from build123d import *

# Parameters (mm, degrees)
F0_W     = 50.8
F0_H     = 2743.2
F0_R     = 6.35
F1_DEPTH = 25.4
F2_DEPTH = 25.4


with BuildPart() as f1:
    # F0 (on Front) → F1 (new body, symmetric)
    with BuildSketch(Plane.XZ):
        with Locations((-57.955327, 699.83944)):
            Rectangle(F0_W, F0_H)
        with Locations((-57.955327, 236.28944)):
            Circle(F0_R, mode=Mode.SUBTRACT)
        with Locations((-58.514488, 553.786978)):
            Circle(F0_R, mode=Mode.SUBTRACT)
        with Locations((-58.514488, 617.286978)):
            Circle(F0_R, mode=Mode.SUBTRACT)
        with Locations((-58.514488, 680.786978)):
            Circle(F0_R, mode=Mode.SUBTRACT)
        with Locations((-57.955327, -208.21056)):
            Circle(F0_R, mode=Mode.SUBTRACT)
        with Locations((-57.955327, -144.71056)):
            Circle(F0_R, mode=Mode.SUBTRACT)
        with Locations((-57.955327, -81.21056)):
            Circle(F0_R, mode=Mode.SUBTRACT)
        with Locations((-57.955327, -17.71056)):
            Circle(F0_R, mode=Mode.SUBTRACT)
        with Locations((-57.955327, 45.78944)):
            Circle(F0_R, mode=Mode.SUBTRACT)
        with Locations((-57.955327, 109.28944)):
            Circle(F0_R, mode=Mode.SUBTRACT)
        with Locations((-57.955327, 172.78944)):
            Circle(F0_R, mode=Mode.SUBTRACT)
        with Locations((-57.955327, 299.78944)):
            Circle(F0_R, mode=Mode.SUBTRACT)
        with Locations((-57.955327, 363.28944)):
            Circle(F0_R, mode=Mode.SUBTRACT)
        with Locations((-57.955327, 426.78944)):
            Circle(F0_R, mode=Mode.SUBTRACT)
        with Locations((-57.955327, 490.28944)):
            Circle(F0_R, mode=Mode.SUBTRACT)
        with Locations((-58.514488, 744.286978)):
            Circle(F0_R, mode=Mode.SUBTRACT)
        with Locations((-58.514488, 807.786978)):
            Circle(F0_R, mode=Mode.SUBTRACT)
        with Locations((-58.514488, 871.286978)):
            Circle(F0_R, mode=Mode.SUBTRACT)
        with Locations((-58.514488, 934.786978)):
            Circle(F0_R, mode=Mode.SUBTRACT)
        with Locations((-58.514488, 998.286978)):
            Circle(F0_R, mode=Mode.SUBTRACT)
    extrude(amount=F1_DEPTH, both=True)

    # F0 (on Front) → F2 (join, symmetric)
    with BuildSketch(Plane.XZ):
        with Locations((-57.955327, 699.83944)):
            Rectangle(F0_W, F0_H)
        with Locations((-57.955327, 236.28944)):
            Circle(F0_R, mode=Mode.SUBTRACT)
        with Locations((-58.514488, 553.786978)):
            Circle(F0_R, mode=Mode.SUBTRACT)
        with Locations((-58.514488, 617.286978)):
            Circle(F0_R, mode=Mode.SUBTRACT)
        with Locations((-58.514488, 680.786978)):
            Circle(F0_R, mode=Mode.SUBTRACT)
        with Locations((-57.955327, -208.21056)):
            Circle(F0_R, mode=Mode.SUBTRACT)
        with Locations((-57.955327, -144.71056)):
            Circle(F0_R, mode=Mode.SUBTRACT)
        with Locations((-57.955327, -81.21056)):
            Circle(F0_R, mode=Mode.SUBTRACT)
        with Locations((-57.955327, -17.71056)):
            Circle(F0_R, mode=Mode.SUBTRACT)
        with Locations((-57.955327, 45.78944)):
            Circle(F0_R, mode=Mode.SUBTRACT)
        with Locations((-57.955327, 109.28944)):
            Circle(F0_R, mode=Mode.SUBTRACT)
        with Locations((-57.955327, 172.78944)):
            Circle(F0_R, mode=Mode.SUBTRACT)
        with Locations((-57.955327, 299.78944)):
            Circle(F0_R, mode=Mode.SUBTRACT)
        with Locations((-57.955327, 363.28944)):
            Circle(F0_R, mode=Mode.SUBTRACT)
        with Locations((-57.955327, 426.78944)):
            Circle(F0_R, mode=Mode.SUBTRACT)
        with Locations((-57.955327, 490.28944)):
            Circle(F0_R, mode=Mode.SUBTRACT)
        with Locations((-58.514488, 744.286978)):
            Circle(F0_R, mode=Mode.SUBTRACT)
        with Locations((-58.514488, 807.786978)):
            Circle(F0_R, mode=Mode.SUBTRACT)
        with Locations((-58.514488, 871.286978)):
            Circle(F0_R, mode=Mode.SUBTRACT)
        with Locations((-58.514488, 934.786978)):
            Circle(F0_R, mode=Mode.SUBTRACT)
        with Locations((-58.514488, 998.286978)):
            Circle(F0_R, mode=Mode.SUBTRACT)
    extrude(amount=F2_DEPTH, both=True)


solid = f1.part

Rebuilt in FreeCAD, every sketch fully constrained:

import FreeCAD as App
import Part
import Sketcher
Q = App.Units.Quantity

doc = App.newDocument("Part")
params = doc.addObject("Spreadsheet::Sheet", "Params")
for row, (alias, value) in enumerate([
    ("sketch1_diameter", "0.5 in"),
    ("sketch1_width", "2 in"),
    ("sketch1_height", "108 in"),
    ("pad1_length", "2 in"),
    ("sketch2_diameter", "0.5 in"),
    ("sketch2_width", "2 in"),
    ("sketch2_height", "108 in"),
    ("pad2_length", "2 in"),
], start=1):
    params.set(f"A{row}", alias)
    params.set(f"B{row}", "=" + value)
    params.setAlias(f"B{row}", alias)

body = doc.addObject("PartDesign::Body", "Body")

# Sketch on XZ plane
sketch1 = doc.addObject("Sketcher::SketchObject", "Sketch")
body.addObject(sketch1)
sketch1.AttachmentSupport = (doc.XZ_Plane, [""])
sketch1.MapMode = "FlatFace"
sketch1.addGeometry([
    Part.LineSegment(App.Vector(-83.355327, 2071.43944, 0), App.Vector(-83.355327, -671.76056, 0)),  # 0
    Part.LineSegment(App.Vector(-83.355327, -671.76056, 0), App.Vector(-32.555327, -671.76056, 0)),  # 1
    Part.LineSegment(App.Vector(-32.555327, -671.76056, 0), App.Vector(-32.555327, 2071.43944, 0)),  # 2
    Part.LineSegment(App.Vector(-32.555327, 2071.43944, 0), App.Vector(-83.355327, 2071.43944, 0)),  # 3
    Part.Circle(App.Vector(-57.955327, -208.21056, 0), App.Vector(0, 0, 1), 6.35),  # 4
    Part.Circle(App.Vector(-57.955327, -144.71056, 0), App.Vector(0, 0, 1), 6.35),  # 5
    Part.Circle(App.Vector(-57.955327, -81.21056, 0), App.Vector(0, 0, 1), 6.35),  # 6
    Part.Circle(App.Vector(-57.955327, -17.71056, 0), App.Vector(0, 0, 1), 6.35),  # 7
    Part.Circle(App.Vector(-57.955327, 45.78944, 0), App.Vector(0, 0, 1), 6.35),  # 8
    Part.Circle(App.Vector(-57.955327, 109.28944, 0), App.Vector(0, 0, 1), 6.35),  # 9
    Part.Circle(App.Vector(-57.955327, 172.78944, 0), App.Vector(0, 0, 1), 6.35),  # 10
    Part.Circle(App.Vector(-57.955327, 236.28944, 0), App.Vector(0, 0, 1), 6.35),  # 11
    Part.Circle(App.Vector(-57.955327, 299.78944, 0), App.Vector(0, 0, 1), 6.35),  # 12
    Part.Circle(App.Vector(-57.955327, 363.28944, 0), App.Vector(0, 0, 1), 6.35),  # 13
    Part.Circle(App.Vector(-58.514488, 553.786978, 0), App.Vector(0, 0, 1), 6.35),  # 14
    Part.Circle(App.Vector(-58.514488, 617.286978, 0), App.Vector(0, 0, 1), 6.35),  # 15
    Part.Circle(App.Vector(-58.514488, 680.786978, 0), App.Vector(0, 0, 1), 6.35),  # 16
    Part.Circle(App.Vector(-58.514488, 744.286978, 0), App.Vector(0, 0, 1), 6.35),  # 17
    Part.Circle(App.Vector(-58.514488, 807.786978, 0), App.Vector(0, 0, 1), 6.35),  # 18
    Part.Circle(App.Vector(-58.514488, 871.286978, 0), App.Vector(0, 0, 1), 6.35),  # 19
    Part.Circle(App.Vector(-58.514488, 934.786978, 0), App.Vector(0, 0, 1), 6.35),  # 20
    Part.Circle(App.Vector(-58.514488, 998.286978, 0), App.Vector(0, 0, 1), 6.35),  # 21
    Part.Circle(App.Vector(-57.955327, 426.78944, 0), App.Vector(0, 0, 1), 6.35),  # 22
    Part.Circle(App.Vector(-57.955327, 490.28944, 0), App.Vector(0, 0, 1), 6.35),  # 23
], False)
sketch1.addConstraint([
    Sketcher.Constraint("Coincident", 0, 2, 1, 1),
    Sketcher.Constraint("Coincident", 1, 2, 2, 1),
    Sketcher.Constraint("Coincident", 2, 2, 3, 1),
    Sketcher.Constraint("Coincident", 3, 2, 0, 1),
    Sketcher.Constraint("Vertical", 0),
    Sketcher.Constraint("Horizontal", 1),
    Sketcher.Constraint("Vertical", 2),
    Sketcher.Constraint("Horizontal", 3),
    Sketcher.Constraint("Equal", 4, 5),
    Sketcher.Constraint("Equal", 5, 6),
    Sketcher.Constraint("Equal", 6, 7),
    Sketcher.Constraint("Equal", 7, 8),
    Sketcher.Constraint("Equal", 8, 9),
    Sketcher.Constraint("Equal", 9, 10),
    Sketcher.Constraint("Equal", 10, 11),
    Sketcher.Constraint("Equal", 11, 12),
    Sketcher.Constraint("Equal", 12, 13),
    Sketcher.Constraint("Equal", 13, 14),
    Sketcher.Constraint("Equal", 14, 15),
    Sketcher.Constraint("Equal", 15, 16),
    Sketcher.Constraint("Equal", 16, 17),
    Sketcher.Constraint("Equal", 17, 18),
    Sketcher.Constraint("Equal", 18, 19),
    Sketcher.Constraint("Equal", 19, 20),
    Sketcher.Constraint("Equal", 20, 21),
    Sketcher.Constraint("Equal", 21, 22),
    Sketcher.Constraint("Equal", 22, 23),
    Sketcher.Constraint("Vertical", 4, 3, 5, 3),
    Sketcher.Constraint("Vertical", 5, 3, 6, 3),
    Sketcher.Constraint("Vertical", 6, 3, 7, 3),
    Sketcher.Constraint("Vertical", 7, 3, 8, 3),
    Sketcher.Constraint("Vertical", 8, 3, 9, 3),
    Sketcher.Constraint("Vertical", 9, 3, 10, 3),
    Sketcher.Constraint("Vertical", 10, 3, 11, 3),
    Sketcher.Constraint("Vertical", 11, 3, 12, 3),
    Sketcher.Constraint("Vertical", 12, 3, 13, 3),
    Sketcher.Constraint("Vertical", 14, 3, 15, 3),
    Sketcher.Constraint("Vertical", 15, 3, 16, 3),
    Sketcher.Constraint("Vertical", 16, 3, 17, 3),
    Sketcher.Constraint("Vertical", 17, 3, 18, 3),
    Sketcher.Constraint("Vertical", 18, 3, 19, 3),
    Sketcher.Constraint("Vertical", 19, 3, 20, 3),
    Sketcher.Constraint("Vertical", 20, 3, 21, 3),
    Sketcher.Constraint("Vertical", 13, 3, 22, 3),
    Sketcher.Constraint("Vertical", 22, 3, 23, 3),
    Sketcher.Constraint("Diameter", 4, Q("0.5 in")),
    Sketcher.Constraint("DistanceX", 1, 1, 1, 2, Q("2 in")),
    Sketcher.Constraint("DistanceY", 0, 2, 0, 1, Q("108 in")),
    Sketcher.Constraint("DistanceY", 4, 3, 6, 3, Q("5 in")),
    Sketcher.Constraint("DistanceY", 5, 3, 7, 3, Q("5 in")),
    Sketcher.Constraint("DistanceY", 6, 3, 8, 3, Q("5 in")),
    Sketcher.Constraint("DistanceY", 7, 3, 9, 3, Q("5 in")),
    Sketcher.Constraint("DistanceY", 8, 3, 10, 3, Q("5 in")),
    Sketcher.Constraint("DistanceY", 9, 3, 11, 3, Q("5 in")),
    Sketcher.Constraint("DistanceY", 10, 3, 12, 3, Q("5 in")),
    Sketcher.Constraint("DistanceY", 11, 3, 13, 3, Q("5 in")),
    Sketcher.Constraint("DistanceY", 14, 3, 16, 3, Q("5 in")),
    Sketcher.Constraint("DistanceY", 15, 3, 17, 3, Q("5 in")),
    Sketcher.Constraint("DistanceY", 16, 3, 18, 3, Q("5 in")),
    Sketcher.Constraint("DistanceY", 17, 3, 19, 3, Q("5 in")),
    Sketcher.Constraint("DistanceY", 18, 3, 20, 3, Q("5 in")),
    Sketcher.Constraint("DistanceY", 19, 3, 21, 3, Q("5 in")),
    Sketcher.Constraint("DistanceY", 12, 3, 22, 3, Q("5 in")),
    Sketcher.Constraint("DistanceY", 13, 3, 23, 3, Q("5 in")),
    Sketcher.Constraint("DistanceX", 0, 2, 4, 3, Q("1 in")),
    Sketcher.Constraint("DistanceY", 4, 3, 5, 3, Q("2.5 in")),
    Sketcher.Constraint("DistanceY", 14, 3, 15, 3, Q("2.5 in")),
    Sketcher.Constraint("DistanceY", 0, 2, 4, 3, Q("18.25 in")),
    Sketcher.Constraint("DistanceY", 4, 3, -1, 1, 208.21056),
    Sketcher.Constraint("DistanceY", -1, 1, 14, 3, 553.786978),
    Sketcher.Constraint("DistanceX", 14, 3, 13, 3, 0.559161),
    Sketcher.Constraint("DistanceX", 4, 3, -1, 1, 57.955327),
])
sketch1.setExpression("Constraints[45]", "Params.sketch1_diameter")
sketch1.setExpression("Constraints[46]", "Params.sketch1_width")
sketch1.setExpression("Constraints[47]", "Params.sketch1_height")
pad1 = doc.addObject("PartDesign::Pad", "Pad")
body.addObject(pad1)
pad1.Profile = sketch1
pad1.setExpression("Length", "Params.pad1_length")
pad1.Midplane = True

# Sketch on XZ plane
sketch2 = doc.addObject("Sketcher::SketchObject", "Sketch001")
body.addObject(sketch2)
sketch2.AttachmentSupport = (doc.XZ_Plane, [""])
sketch2.MapMode = "FlatFace"
sketch2.addGeometry([
    Part.LineSegment(App.Vector(-83.355327, 2071.43944, 0), App.Vector(-83.355327, -671.76056, 0)),  # 0
    Part.LineSegment(App.Vector(-83.355327, -671.76056, 0), App.Vector(-32.555327, -671.76056, 0)),  # 1
    Part.LineSegment(App.Vector(-32.555327, -671.76056, 0), App.Vector(-32.555327, 2071.43944, 0)),  # 2
    Part.LineSegment(App.Vector(-32.555327, 2071.43944, 0), App.Vector(-83.355327, 2071.43944, 0)),  # 3
    Part.Circle(App.Vector(-57.955327, -208.21056, 0), App.Vector(0, 0, 1), 6.35),  # 4
    Part.Circle(App.Vector(-57.955327, -144.71056, 0), App.Vector(0, 0, 1), 6.35),  # 5
    Part.Circle(App.Vector(-57.955327, -81.21056, 0), App.Vector(0, 0, 1), 6.35),  # 6
    Part.Circle(App.Vector(-57.955327, -17.71056, 0), App.Vector(0, 0, 1), 6.35),  # 7
    Part.Circle(App.Vector(-57.955327, 45.78944, 0), App.Vector(0, 0, 1), 6.35),  # 8
    Part.Circle(App.Vector(-57.955327, 109.28944, 0), App.Vector(0, 0, 1), 6.35),  # 9
    Part.Circle(App.Vector(-57.955327, 172.78944, 0), App.Vector(0, 0, 1), 6.35),  # 10
    Part.Circle(App.Vector(-57.955327, 236.28944, 0), App.Vector(0, 0, 1), 6.35),  # 11
    Part.Circle(App.Vector(-57.955327, 299.78944, 0), App.Vector(0, 0, 1), 6.35),  # 12
    Part.Circle(App.Vector(-57.955327, 363.28944, 0), App.Vector(0, 0, 1), 6.35),  # 13
    Part.Circle(App.Vector(-58.514488, 553.786978, 0), App.Vector(0, 0, 1), 6.35),  # 14
    Part.Circle(App.Vector(-58.514488, 617.286978, 0), App.Vector(0, 0, 1), 6.35),  # 15
    Part.Circle(App.Vector(-58.514488, 680.786978, 0), App.Vector(0, 0, 1), 6.35),  # 16
    Part.Circle(App.Vector(-58.514488, 744.286978, 0), App.Vector(0, 0, 1), 6.35),  # 17
    Part.Circle(App.Vector(-58.514488, 807.786978, 0), App.Vector(0, 0, 1), 6.35),  # 18
    Part.Circle(App.Vector(-58.514488, 871.286978, 0), App.Vector(0, 0, 1), 6.35),  # 19
    Part.Circle(App.Vector(-58.514488, 934.786978, 0), App.Vector(0, 0, 1), 6.35),  # 20
    Part.Circle(App.Vector(-58.514488, 998.286978, 0), App.Vector(0, 0, 1), 6.35),  # 21
    Part.Circle(App.Vector(-57.955327, 426.78944, 0), App.Vector(0, 0, 1), 6.35),  # 22
    Part.Circle(App.Vector(-57.955327, 490.28944, 0), App.Vector(0, 0, 1), 6.35),  # 23
], False)
sketch2.addConstraint([
    Sketcher.Constraint("Coincident", 0, 2, 1, 1),
    Sketcher.Constraint("Coincident", 1, 2, 2, 1),
    Sketcher.Constraint("Coincident", 2, 2, 3, 1),
    Sketcher.Constraint("Coincident", 3, 2, 0, 1),
    Sketcher.Constraint("Vertical", 0),
    Sketcher.Constraint("Horizontal", 1),
    Sketcher.Constraint("Vertical", 2),
    Sketcher.Constraint("Horizontal", 3),
    Sketcher.Constraint("Equal", 4, 5),
    Sketcher.Constraint("Equal", 5, 6),
    Sketcher.Constraint("Equal", 6, 7),
    Sketcher.Constraint("Equal", 7, 8),
    Sketcher.Constraint("Equal", 8, 9),
    Sketcher.Constraint("Equal", 9, 10),
    Sketcher.Constraint("Equal", 10, 11),
    Sketcher.Constraint("Equal", 11, 12),
    Sketcher.Constraint("Equal", 12, 13),
    Sketcher.Constraint("Equal", 13, 14),
    Sketcher.Constraint("Equal", 14, 15),
    Sketcher.Constraint("Equal", 15, 16),
    Sketcher.Constraint("Equal", 16, 17),
    Sketcher.Constraint("Equal", 17, 18),
    Sketcher.Constraint("Equal", 18, 19),
    Sketcher.Constraint("Equal", 19, 20),
    Sketcher.Constraint("Equal", 20, 21),
    Sketcher.Constraint("Equal", 21, 22),
    Sketcher.Constraint("Equal", 22, 23),
    Sketcher.Constraint("Vertical", 4, 3, 5, 3),
    Sketcher.Constraint("Vertical", 5, 3, 6, 3),
    Sketcher.Constraint("Vertical", 6, 3, 7, 3),
    Sketcher.Constraint("Vertical", 7, 3, 8, 3),
    Sketcher.Constraint("Vertical", 8, 3, 9, 3),
    Sketcher.Constraint("Vertical", 9, 3, 10, 3),
    Sketcher.Constraint("Vertical", 10, 3, 11, 3),
    Sketcher.Constraint("Vertical", 11, 3, 12, 3),
    Sketcher.Constraint("Vertical", 12, 3, 13, 3),
    Sketcher.Constraint("Vertical", 14, 3, 15, 3),
    Sketcher.Constraint("Vertical", 15, 3, 16, 3),
    Sketcher.Constraint("Vertical", 16, 3, 17, 3),
    Sketcher.Constraint("Vertical", 17, 3, 18, 3),
    Sketcher.Constraint("Vertical", 18, 3, 19, 3),
    Sketcher.Constraint("Vertical", 19, 3, 20, 3),
    Sketcher.Constraint("Vertical", 20, 3, 21, 3),
    Sketcher.Constraint("Vertical", 13, 3, 22, 3),
    Sketcher.Constraint("Vertical", 22, 3, 23, 3),
    Sketcher.Constraint("Diameter", 4, Q("0.5 in")),
    Sketcher.Constraint("DistanceX", 1, 1, 1, 2, Q("2 in")),
    Sketcher.Constraint("DistanceY", 0, 2, 0, 1, Q("108 in")),
    Sketcher.Constraint("DistanceY", 4, 3, 6, 3, Q("5 in")),
    Sketcher.Constraint("DistanceY", 5, 3, 7, 3, Q("5 in")),
    Sketcher.Constraint("DistanceY", 6, 3, 8, 3, Q("5 in")),
    Sketcher.Constraint("DistanceY", 7, 3, 9, 3, Q("5 in")),
    Sketcher.Constraint("DistanceY", 8, 3, 10, 3, Q("5 in")),
    Sketcher.Constraint("DistanceY", 9, 3, 11, 3, Q("5 in")),
    Sketcher.Constraint("DistanceY", 10, 3, 12, 3, Q("5 in")),
    Sketcher.Constraint("DistanceY", 11, 3, 13, 3, Q("5 in")),
    Sketcher.Constraint("DistanceY", 14, 3, 16, 3, Q("5 in")),
    Sketcher.Constraint("DistanceY", 15, 3, 17, 3, Q("5 in")),
    Sketcher.Constraint("DistanceY", 16, 3, 18, 3, Q("5 in")),
    Sketcher.Constraint("DistanceY", 17, 3, 19, 3, Q("5 in")),
    Sketcher.Constraint("DistanceY", 18, 3, 20, 3, Q("5 in")),
    Sketcher.Constraint("DistanceY", 19, 3, 21, 3, Q("5 in")),
    Sketcher.Constraint("DistanceY", 12, 3, 22, 3, Q("5 in")),
    Sketcher.Constraint("DistanceY", 13, 3, 23, 3, Q("5 in")),
    Sketcher.Constraint("DistanceX", 0, 2, 4, 3, Q("1 in")),
    Sketcher.Constraint("DistanceY", 4, 3, 5, 3, Q("2.5 in")),
    Sketcher.Constraint("DistanceY", 14, 3, 15, 3, Q("2.5 in")),
    Sketcher.Constraint("DistanceY", 0, 2, 4, 3, Q("18.25 in")),
    Sketcher.Constraint("DistanceY", 4, 3, -1, 1, 208.21056),
    Sketcher.Constraint("DistanceY", -1, 1, 14, 3, 553.786978),
    Sketcher.Constraint("DistanceX", 14, 3, 13, 3, 0.559161),
    Sketcher.Constraint("DistanceX", 4, 3, -1, 1, 57.955327),
])
sketch2.setExpression("Constraints[45]", "Params.sketch2_diameter")
sketch2.setExpression("Constraints[46]", "Params.sketch2_width")
sketch2.setExpression("Constraints[47]", "Params.sketch2_height")
pad2 = doc.addObject("PartDesign::Pad", "Pad001")
body.addObject(pad2)
pad2.Profile = sketch2
pad2.setExpression("Length", "Params.pad2_length")
pad2.Midplane = True

doc.recompute()
